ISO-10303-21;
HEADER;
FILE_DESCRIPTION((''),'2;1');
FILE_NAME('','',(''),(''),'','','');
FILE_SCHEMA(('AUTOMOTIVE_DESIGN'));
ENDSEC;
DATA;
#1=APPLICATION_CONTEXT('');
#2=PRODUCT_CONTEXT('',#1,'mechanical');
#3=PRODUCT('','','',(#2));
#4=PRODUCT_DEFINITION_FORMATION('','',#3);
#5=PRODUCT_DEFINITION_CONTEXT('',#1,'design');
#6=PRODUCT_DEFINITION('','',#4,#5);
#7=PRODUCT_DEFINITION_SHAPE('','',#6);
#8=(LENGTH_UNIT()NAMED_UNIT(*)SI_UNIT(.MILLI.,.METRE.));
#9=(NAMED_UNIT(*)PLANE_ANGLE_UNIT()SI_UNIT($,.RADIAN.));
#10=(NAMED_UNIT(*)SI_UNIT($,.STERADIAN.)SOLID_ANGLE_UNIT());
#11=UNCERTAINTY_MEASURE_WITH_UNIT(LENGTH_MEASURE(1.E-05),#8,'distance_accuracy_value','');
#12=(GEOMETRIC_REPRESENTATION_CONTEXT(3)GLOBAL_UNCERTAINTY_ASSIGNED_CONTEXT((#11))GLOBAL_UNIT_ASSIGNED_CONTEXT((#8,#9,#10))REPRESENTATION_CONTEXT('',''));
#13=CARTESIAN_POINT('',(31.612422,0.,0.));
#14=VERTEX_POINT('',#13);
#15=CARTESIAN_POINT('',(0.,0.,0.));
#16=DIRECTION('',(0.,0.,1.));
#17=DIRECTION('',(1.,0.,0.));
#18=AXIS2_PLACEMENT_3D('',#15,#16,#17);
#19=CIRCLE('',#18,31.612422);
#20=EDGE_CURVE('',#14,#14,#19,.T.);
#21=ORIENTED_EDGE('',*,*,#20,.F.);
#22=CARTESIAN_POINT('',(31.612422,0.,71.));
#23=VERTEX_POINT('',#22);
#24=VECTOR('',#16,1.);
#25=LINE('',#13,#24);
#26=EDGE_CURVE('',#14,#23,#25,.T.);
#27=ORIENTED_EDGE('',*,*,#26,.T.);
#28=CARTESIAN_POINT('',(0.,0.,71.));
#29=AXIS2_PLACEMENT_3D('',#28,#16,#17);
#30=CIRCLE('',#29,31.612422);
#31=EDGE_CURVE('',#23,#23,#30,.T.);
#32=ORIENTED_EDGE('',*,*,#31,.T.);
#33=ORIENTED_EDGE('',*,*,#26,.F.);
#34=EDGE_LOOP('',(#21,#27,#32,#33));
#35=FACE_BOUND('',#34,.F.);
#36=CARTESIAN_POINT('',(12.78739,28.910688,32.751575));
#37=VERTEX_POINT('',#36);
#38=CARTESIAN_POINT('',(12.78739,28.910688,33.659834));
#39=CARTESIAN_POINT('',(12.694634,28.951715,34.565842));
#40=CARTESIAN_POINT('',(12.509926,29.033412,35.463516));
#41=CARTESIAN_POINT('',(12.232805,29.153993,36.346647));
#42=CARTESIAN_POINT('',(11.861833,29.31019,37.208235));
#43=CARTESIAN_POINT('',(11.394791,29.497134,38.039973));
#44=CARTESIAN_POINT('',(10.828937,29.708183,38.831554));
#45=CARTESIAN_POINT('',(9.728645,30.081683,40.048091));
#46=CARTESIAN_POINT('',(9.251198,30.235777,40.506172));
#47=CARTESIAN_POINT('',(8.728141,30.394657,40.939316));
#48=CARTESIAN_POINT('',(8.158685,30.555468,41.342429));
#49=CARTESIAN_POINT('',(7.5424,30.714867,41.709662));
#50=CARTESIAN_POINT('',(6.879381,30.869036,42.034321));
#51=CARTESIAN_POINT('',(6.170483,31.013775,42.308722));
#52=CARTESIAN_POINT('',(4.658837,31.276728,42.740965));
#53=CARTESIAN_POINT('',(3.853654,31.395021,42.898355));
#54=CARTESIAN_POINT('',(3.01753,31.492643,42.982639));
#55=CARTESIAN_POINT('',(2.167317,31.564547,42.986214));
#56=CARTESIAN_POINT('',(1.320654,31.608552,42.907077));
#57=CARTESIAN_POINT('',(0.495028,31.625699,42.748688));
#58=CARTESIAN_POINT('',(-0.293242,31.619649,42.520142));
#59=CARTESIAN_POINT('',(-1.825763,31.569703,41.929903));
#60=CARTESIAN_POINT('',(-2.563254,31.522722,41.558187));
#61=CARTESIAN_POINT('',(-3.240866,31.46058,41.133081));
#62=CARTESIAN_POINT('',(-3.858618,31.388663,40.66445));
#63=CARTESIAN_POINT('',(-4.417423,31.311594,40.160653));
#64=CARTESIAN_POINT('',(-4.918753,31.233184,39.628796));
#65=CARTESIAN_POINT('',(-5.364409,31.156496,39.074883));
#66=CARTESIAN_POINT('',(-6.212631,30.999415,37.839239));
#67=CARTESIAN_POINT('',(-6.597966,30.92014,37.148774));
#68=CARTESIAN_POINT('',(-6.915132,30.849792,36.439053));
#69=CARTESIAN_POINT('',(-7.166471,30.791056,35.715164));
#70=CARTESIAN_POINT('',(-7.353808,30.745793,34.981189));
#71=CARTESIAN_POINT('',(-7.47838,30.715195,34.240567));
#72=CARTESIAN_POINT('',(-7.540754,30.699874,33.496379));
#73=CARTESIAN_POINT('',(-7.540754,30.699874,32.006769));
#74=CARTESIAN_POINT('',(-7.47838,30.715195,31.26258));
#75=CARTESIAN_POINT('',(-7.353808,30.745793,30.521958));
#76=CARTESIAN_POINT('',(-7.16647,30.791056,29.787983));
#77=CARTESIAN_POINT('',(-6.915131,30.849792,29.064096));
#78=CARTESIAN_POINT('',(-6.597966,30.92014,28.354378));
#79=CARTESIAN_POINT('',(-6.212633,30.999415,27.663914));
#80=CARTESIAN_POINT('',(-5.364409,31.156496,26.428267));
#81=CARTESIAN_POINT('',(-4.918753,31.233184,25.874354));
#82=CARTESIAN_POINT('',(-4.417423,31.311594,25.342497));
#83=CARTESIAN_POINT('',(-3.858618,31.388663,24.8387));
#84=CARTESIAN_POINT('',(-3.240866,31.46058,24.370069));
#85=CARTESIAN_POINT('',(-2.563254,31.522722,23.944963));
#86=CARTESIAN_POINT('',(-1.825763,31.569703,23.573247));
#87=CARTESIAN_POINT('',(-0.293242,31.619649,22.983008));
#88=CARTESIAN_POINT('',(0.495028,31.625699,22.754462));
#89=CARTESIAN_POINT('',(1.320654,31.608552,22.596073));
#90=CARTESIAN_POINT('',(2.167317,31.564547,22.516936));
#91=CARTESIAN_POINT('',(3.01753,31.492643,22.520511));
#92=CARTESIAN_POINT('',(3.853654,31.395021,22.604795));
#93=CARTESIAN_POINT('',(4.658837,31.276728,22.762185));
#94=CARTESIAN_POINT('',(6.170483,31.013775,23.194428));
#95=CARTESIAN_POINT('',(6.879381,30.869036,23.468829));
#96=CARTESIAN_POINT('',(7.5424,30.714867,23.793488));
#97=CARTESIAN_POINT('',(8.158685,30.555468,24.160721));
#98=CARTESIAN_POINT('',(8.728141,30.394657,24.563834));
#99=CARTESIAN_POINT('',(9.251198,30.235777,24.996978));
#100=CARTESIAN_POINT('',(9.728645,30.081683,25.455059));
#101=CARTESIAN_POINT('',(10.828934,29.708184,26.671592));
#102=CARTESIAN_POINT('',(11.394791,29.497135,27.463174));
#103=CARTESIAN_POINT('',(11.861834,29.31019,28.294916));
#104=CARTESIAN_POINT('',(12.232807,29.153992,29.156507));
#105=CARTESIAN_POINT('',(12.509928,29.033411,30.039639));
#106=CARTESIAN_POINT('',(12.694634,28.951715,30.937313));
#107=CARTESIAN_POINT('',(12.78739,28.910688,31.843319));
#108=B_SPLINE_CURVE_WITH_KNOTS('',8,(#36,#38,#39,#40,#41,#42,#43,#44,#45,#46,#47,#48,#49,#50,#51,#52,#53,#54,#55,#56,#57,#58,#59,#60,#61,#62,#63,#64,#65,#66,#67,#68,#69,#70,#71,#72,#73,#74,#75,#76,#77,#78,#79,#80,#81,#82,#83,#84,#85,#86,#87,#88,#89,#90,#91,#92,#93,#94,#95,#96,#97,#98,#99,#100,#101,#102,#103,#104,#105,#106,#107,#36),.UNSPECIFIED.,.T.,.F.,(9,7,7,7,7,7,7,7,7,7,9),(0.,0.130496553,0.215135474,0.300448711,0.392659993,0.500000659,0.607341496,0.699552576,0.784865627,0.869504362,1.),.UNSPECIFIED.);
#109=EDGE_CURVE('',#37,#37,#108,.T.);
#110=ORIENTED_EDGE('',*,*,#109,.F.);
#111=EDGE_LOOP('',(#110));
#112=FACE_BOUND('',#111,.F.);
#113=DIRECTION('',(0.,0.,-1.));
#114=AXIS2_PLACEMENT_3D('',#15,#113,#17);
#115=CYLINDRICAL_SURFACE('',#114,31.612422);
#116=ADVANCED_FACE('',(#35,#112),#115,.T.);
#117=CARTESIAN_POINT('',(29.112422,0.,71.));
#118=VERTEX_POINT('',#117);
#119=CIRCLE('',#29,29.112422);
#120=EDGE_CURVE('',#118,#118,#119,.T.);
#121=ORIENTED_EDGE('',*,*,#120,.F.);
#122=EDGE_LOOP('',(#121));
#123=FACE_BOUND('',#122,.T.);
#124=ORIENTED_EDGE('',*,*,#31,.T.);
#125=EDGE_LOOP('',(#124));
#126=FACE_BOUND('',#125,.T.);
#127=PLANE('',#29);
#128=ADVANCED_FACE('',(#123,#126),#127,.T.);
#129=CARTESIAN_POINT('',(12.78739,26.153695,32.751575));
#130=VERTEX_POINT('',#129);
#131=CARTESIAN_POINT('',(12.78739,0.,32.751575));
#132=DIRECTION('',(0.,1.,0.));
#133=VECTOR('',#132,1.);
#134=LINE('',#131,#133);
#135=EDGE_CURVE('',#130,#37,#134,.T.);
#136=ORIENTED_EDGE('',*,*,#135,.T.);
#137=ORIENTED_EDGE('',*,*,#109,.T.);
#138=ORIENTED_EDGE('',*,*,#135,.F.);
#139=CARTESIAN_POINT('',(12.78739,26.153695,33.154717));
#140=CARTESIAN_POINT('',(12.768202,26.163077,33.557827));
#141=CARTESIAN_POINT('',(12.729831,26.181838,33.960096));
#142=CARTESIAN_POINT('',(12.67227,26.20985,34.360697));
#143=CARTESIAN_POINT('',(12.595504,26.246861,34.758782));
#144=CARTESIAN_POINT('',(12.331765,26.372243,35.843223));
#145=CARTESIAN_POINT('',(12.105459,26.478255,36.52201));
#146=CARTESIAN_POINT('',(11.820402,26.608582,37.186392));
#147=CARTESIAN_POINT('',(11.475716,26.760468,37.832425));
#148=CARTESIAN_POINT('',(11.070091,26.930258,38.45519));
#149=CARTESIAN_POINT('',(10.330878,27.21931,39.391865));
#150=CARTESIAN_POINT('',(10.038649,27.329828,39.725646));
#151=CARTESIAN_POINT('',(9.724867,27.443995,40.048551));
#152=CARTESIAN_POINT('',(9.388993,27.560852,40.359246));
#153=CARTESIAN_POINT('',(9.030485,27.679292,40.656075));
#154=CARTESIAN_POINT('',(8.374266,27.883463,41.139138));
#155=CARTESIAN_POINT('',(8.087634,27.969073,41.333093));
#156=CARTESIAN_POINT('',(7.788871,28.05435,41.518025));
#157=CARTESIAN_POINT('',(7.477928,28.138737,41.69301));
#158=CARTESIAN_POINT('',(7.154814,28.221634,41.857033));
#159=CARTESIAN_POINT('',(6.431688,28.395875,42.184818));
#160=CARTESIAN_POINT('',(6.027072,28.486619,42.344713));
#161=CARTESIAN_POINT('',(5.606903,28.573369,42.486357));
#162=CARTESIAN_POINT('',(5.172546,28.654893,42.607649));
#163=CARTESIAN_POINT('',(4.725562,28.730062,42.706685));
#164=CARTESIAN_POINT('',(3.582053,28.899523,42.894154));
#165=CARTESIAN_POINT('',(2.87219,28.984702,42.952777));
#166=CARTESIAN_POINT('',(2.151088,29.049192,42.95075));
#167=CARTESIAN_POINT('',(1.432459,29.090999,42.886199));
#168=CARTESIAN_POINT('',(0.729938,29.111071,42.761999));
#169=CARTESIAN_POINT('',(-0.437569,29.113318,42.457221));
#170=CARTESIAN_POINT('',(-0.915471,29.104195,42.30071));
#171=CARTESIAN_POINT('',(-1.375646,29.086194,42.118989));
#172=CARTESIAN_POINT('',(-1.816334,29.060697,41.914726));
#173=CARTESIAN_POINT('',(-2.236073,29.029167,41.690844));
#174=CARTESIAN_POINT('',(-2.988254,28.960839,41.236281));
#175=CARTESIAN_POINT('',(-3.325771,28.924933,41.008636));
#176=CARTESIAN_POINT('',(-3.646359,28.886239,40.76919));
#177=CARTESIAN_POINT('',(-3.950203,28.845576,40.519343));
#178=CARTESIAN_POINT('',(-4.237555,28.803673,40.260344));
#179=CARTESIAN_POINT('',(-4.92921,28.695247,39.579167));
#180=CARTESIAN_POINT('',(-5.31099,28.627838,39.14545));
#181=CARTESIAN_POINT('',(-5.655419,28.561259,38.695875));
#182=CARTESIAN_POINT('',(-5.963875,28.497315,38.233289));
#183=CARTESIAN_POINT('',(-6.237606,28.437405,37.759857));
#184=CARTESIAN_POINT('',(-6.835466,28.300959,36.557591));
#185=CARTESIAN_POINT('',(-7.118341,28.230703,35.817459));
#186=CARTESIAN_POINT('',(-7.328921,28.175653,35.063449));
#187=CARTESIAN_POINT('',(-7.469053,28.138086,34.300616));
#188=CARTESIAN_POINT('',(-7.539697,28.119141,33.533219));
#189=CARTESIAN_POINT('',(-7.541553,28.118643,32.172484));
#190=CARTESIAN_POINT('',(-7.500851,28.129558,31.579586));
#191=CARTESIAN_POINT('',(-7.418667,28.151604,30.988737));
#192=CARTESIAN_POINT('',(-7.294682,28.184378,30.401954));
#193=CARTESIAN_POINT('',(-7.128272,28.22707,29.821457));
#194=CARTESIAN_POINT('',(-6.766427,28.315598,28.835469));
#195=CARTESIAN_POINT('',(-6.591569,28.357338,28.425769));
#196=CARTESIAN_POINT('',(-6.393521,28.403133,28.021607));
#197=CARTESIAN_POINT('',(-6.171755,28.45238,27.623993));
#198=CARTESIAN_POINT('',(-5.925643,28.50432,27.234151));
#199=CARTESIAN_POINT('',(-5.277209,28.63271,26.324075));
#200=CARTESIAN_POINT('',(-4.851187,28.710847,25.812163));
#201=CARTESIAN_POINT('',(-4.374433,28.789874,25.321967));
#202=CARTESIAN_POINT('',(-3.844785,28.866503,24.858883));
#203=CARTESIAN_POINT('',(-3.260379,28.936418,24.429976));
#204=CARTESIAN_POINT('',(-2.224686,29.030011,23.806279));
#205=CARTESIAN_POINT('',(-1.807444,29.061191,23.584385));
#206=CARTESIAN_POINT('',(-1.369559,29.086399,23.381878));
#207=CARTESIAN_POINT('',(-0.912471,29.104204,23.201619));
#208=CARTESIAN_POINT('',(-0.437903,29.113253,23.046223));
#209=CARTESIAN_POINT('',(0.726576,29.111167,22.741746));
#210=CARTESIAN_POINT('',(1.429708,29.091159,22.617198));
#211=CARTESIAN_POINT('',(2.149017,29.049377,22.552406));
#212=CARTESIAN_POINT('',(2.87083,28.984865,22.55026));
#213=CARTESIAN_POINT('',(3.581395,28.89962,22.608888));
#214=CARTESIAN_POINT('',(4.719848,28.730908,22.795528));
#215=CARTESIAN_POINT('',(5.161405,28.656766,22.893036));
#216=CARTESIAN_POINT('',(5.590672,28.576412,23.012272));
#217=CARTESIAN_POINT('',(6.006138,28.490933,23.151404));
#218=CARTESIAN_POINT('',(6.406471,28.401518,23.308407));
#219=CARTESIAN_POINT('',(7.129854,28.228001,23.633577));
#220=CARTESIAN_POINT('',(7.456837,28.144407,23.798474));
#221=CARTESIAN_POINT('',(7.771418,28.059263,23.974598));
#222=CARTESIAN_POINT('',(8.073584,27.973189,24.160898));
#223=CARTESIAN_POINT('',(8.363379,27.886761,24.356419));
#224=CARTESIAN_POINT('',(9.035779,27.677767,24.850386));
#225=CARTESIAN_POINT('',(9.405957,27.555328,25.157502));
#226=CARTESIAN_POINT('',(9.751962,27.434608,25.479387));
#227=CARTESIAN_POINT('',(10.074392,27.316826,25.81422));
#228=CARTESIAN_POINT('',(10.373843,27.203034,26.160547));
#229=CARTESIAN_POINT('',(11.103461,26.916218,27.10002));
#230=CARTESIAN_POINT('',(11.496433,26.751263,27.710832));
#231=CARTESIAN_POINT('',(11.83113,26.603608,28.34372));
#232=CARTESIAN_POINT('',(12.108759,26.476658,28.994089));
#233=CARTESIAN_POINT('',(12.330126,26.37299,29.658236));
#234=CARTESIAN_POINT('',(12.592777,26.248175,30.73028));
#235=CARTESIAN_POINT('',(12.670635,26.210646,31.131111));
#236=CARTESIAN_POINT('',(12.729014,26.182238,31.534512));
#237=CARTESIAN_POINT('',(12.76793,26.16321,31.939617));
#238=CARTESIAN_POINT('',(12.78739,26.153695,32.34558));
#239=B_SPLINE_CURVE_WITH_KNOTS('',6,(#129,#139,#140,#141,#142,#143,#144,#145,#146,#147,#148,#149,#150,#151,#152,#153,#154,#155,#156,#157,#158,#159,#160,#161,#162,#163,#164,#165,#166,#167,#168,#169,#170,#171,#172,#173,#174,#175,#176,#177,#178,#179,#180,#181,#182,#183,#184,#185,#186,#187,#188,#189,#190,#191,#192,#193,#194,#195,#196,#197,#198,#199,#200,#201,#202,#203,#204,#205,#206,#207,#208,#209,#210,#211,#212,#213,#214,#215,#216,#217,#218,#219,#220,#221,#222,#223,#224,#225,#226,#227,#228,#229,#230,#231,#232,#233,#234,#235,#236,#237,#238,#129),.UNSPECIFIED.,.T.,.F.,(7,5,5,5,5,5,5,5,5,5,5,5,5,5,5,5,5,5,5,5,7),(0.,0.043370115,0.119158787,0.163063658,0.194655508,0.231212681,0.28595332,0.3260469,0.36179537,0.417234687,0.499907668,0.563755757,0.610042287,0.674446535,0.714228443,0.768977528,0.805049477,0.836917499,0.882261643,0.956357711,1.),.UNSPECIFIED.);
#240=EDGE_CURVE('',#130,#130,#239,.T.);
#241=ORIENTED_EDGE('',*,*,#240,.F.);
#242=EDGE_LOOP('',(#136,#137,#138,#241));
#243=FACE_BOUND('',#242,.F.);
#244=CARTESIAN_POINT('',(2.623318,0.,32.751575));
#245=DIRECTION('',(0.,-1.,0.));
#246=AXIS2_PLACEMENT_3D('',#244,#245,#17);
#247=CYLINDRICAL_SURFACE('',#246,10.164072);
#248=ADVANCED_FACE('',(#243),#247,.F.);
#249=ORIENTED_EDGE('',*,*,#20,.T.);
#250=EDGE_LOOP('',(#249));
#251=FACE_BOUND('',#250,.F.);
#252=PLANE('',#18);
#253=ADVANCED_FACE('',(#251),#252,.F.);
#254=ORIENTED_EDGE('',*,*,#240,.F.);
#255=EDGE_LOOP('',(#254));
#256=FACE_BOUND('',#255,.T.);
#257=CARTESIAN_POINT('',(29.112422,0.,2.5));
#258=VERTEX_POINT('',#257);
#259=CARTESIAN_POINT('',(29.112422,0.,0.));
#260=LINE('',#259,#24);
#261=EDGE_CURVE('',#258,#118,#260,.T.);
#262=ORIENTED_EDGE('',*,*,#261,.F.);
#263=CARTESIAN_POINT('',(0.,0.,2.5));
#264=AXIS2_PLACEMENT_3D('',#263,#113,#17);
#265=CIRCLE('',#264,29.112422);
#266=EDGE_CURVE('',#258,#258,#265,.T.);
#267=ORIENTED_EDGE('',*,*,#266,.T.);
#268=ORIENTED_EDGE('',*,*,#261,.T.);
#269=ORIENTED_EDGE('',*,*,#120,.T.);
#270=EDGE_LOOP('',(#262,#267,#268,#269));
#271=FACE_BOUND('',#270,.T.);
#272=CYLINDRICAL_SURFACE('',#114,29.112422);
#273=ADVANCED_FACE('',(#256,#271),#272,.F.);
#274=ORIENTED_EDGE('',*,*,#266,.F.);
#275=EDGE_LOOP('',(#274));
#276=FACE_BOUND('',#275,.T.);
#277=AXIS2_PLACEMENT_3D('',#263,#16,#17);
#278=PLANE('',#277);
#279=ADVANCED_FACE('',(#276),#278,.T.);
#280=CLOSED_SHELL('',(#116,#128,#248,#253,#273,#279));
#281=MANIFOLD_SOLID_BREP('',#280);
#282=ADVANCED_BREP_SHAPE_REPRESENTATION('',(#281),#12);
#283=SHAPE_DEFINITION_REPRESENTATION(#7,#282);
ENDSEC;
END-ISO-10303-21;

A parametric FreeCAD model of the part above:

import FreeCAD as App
import Part
import Sketcher


def faces_at(feature, points):
    """Names of the faces that lie closest to the given points."""
    faces = feature.Shape.Faces
    near = lambda p: min(range(len(faces)), key=lambda i: faces[i].distToShape(Part.Vertex(*p))[0])
    return sorted({f"Face{near(p) + 1}" for p in points})

doc = App.newDocument("Part")
body = doc.addObject("PartDesign::Body", "Body")

# Sketch on XY plane
sketch1 = doc.addObject("Sketcher::SketchObject", "Sketch")
body.addObject(sketch1)
sketch1.AttachmentSupport = (doc.XY_Plane, [""])
sketch1.MapMode = "FlatFace"
sketch1.addGeometry(Part.Circle(App.Vector(0, 0, 0), App.Vector(0, 0, 1), 31.612422), False)
sketch1.addConstraint([
    Sketcher.Constraint("Coincident", 0, 3, -1, 1),
    Sketcher.Constraint("Diameter", 0, 63.224844),
])
pad1 = doc.addObject("PartDesign::Pad", "Pad")
body.addObject(pad1)
pad1.Profile = sketch1
pad1.Length = 71
doc.recompute()

thickness = doc.addObject("PartDesign::Thickness", "Thickness")
body.addObject(thickness)
thickness.Base = (pad1, faces_at(pad1, [(0, 0, 71)]))
thickness.Value = 2.5
thickness.Reversed = True
thickness.Join = "Arc"

# Sketch on XZ plane
sketch2 = doc.addObject("Sketcher::SketchObject", "Sketch001")
body.addObject(sketch2)
sketch2.AttachmentSupport = (doc.XZ_Plane, [""])
sketch2.MapMode = "FlatFace"
sketch2.addGeometry(Part.Circle(App.Vector(2.623318, 32.751575, 0), App.Vector(0, 0, 1), 10.164072), False)
sketch2.addConstraint([
    Sketcher.Constraint("Diameter", 0, 20.328144),
    Sketcher.Constraint("DistanceX", -1, 1, 0, 3, 2.623318),
    Sketcher.Constraint("DistanceY", -1, 1, 0, 3, 32.751575),
])
pocket1 = doc.addObject("PartDesign::Pocket", "Pocket")
body.addObject(pocket1)
pocket1.Profile = sketch2
pocket1.Length = 100

doc.recompute()
